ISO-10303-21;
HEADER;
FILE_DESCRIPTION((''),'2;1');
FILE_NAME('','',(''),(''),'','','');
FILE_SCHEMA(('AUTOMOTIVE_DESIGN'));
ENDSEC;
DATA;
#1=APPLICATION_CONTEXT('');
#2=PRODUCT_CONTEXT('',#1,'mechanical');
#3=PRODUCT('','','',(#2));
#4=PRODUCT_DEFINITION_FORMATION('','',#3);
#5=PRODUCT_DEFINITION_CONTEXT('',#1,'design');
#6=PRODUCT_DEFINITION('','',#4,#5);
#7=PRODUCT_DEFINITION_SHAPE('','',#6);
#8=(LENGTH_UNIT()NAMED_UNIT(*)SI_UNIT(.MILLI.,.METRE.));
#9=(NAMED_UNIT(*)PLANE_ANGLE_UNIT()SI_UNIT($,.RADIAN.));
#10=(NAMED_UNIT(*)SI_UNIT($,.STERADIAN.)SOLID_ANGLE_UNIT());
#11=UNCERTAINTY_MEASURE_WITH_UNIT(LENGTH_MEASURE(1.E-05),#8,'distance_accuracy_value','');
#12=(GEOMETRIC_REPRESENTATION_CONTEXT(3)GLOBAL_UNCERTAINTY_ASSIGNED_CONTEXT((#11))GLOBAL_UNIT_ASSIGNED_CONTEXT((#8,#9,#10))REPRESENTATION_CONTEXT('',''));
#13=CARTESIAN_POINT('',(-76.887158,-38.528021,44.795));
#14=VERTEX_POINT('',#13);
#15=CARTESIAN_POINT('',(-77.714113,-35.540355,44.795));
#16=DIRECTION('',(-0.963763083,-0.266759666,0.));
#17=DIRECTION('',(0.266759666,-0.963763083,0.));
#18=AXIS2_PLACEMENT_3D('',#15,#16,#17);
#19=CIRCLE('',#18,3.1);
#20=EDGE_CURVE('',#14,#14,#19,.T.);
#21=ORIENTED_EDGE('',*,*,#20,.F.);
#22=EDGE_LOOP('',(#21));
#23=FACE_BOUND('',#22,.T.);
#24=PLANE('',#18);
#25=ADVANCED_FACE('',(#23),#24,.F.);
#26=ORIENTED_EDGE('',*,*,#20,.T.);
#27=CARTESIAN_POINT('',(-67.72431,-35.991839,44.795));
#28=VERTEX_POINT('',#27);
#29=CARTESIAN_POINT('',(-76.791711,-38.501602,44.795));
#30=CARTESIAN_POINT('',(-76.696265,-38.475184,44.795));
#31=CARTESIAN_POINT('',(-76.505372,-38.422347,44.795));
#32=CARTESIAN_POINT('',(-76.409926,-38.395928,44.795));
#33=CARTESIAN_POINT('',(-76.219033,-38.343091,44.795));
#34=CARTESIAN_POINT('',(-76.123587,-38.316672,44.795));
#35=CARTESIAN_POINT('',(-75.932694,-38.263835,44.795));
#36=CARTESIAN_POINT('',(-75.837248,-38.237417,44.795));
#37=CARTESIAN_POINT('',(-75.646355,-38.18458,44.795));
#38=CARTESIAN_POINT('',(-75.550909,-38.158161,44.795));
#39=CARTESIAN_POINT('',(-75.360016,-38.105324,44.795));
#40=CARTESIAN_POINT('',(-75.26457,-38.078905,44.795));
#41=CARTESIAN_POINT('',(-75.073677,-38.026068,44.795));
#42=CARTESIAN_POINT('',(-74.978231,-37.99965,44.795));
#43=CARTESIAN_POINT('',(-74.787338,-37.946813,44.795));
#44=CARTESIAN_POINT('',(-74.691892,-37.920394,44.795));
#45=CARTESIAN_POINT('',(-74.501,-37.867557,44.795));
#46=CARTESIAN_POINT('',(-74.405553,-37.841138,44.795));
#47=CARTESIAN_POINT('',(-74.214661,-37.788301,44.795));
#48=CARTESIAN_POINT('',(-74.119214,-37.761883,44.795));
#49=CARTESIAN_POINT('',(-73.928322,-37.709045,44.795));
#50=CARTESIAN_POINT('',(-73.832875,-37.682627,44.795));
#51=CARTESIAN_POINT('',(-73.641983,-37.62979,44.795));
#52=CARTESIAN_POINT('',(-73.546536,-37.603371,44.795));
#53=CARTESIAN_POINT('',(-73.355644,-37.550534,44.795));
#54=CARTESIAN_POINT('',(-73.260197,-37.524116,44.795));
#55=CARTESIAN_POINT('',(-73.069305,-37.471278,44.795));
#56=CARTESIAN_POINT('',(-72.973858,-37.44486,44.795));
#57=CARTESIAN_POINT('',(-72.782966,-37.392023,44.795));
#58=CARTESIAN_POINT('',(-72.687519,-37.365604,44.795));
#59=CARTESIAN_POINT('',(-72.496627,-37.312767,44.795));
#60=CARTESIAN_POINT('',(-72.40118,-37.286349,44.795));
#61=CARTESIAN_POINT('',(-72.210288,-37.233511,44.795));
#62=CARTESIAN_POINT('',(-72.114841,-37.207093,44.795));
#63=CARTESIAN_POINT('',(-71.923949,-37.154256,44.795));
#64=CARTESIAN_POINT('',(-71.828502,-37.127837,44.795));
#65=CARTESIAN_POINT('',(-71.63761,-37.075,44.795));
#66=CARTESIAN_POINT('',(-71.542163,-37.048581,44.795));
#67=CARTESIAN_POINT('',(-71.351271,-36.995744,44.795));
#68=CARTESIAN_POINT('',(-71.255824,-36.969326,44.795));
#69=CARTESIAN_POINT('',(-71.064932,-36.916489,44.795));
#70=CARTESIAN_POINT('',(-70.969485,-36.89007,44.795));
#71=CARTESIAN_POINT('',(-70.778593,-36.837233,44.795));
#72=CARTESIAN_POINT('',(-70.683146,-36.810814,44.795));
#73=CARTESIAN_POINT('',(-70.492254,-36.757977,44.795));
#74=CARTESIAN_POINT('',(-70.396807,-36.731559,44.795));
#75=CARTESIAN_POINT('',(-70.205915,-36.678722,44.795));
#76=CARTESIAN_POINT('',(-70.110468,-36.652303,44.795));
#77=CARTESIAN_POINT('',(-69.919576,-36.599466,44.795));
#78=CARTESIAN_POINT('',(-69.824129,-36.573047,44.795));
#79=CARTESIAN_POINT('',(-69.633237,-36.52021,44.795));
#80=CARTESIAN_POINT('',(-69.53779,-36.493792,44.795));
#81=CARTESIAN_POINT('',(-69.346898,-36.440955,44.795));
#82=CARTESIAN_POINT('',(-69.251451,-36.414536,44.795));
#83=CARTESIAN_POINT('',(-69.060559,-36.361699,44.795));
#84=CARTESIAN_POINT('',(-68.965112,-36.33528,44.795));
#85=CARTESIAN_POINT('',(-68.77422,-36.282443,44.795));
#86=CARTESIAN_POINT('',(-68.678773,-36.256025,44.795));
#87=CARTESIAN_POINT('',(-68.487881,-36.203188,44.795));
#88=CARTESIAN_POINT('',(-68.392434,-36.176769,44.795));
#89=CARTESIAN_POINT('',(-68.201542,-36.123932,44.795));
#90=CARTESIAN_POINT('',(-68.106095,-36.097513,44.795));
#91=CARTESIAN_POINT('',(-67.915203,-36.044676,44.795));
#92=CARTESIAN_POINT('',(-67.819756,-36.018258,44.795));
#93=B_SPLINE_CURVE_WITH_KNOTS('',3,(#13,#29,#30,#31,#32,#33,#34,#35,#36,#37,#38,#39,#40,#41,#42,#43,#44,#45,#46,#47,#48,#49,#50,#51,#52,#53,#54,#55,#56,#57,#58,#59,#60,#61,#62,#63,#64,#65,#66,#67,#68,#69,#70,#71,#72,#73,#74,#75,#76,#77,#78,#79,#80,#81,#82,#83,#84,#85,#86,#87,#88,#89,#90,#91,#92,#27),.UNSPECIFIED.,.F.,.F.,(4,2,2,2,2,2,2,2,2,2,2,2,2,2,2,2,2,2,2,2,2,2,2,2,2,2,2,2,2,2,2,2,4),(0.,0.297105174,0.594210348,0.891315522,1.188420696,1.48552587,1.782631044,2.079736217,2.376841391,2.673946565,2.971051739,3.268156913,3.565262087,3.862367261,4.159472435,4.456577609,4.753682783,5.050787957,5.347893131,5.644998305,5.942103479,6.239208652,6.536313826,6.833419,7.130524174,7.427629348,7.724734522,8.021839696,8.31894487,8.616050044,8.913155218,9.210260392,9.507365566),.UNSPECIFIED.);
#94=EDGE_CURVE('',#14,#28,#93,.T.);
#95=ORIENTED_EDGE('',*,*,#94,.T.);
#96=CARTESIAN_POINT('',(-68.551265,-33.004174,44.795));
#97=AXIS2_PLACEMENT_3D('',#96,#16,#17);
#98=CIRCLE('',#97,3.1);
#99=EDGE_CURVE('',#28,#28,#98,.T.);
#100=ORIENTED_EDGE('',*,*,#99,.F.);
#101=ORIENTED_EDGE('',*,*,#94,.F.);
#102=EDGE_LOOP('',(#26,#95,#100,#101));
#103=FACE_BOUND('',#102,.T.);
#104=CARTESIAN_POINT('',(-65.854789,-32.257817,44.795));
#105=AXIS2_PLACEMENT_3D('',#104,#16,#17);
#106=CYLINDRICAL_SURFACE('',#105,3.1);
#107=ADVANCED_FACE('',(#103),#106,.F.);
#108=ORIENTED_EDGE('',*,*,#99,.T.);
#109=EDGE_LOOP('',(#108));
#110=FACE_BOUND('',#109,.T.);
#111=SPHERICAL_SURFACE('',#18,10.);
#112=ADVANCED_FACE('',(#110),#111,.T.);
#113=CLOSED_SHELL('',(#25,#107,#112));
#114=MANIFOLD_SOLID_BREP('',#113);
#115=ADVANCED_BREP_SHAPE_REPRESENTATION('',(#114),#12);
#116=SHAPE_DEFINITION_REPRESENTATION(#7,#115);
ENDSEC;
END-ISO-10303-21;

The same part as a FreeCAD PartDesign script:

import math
import FreeCAD as App
import Part
import Sketcher
from FreeCAD import Vector
Q = App.Units.Quantity

doc = App.newDocument("Part")
body = doc.addObject("PartDesign::Body", "Body")

# Sketch on an angled plane
sketch1 = doc.addObject("Sketcher::SketchObject", "Sketch")
body.addObject(sketch1)
sketch1.Placement = App.Placement(Vector(-81.321101, -22.508841, 0), App.Rotation(Vector(0, 0, 1), Vector(-0.266759666, 0.963763083, 0), Vector(-0.963763083, -0.266759666, 0), "ZXY"))
sketch1.addGeometry([
    Part.LineSegment(Vector(45, -4, 0), Vector(45, -24, 0)),
    Part.ArcOfCircle(Part.Circle(Vector(45, -14, 0), Vector(0, 0, 1), 10), math.radians(-90), math.radians(90)),
], False)
sketch1.addGeometry(Part.LineSegment(Vector(45, -4, 0), Vector(45, -24, 0)), True)  # axis
sketch1.addConstraint([
    Sketcher.Constraint("Coincident", 0, 1, 1, 2),
    Sketcher.Constraint("Coincident", 1, 1, 0, 2),
    Sketcher.Constraint("Vertical", 0),
    Sketcher.Constraint("Vertical", 2),
    Sketcher.Constraint("Coincident", 2, 1, 0, 1),
    Sketcher.Constraint("Vertical", 1, 3, 0, 1),
    Sketcher.Constraint("Equal", 0, 2),
    Sketcher.Constraint("Radius", 1, Q("10 mm")),
    Sketcher.Constraint("DistanceX", -1, 1, 1, 3, Q("44.795 mm")),
    Sketcher.Constraint("DistanceY", 1, 3, -1, 1, Q("13.521492 mm")),
])
revolution = doc.addObject("PartDesign::Revolution", "Revolution")
body.addObject(revolution)
revolution.Profile = sketch1
revolution.ReferenceAxis = (sketch1, ["Axis0"])
revolution.Angle = 360

# Sketch on an angled plane
sketch2 = doc.addObject("Sketcher::SketchObject", "Sketch001")
body.addObject(sketch2)
sketch2.Placement = App.Placement(Vector(-81.321101, -22.508841, 0), App.Rotation(Vector(0, 0, 1), Vector(-0.266759666, 0.963763083, 0), Vector(-0.963763083, -0.266759666, 0), "ZXY"))
sketch2.addGeometry(Part.Circle(Vector(44.8, -13.5, 0), Vector(0, 0, 1), 3.1), False)
sketch2.addConstraint([
    Sketcher.Constraint("Diameter", 0, Q("6.2 mm")),
    Sketcher.Constraint("DistanceX", -1, 1, 0, 3, Q("44.795 mm")),
    Sketcher.Constraint("DistanceY", 0, 3, -1, 1, Q("13.521492 mm")),
])
pocket1 = doc.addObject("PartDesign::Pocket", "Pocket")
body.addObject(pocket1)
pocket1.Profile = sketch2
pocket1.Type = "ThroughAll"

doc.recompute()
